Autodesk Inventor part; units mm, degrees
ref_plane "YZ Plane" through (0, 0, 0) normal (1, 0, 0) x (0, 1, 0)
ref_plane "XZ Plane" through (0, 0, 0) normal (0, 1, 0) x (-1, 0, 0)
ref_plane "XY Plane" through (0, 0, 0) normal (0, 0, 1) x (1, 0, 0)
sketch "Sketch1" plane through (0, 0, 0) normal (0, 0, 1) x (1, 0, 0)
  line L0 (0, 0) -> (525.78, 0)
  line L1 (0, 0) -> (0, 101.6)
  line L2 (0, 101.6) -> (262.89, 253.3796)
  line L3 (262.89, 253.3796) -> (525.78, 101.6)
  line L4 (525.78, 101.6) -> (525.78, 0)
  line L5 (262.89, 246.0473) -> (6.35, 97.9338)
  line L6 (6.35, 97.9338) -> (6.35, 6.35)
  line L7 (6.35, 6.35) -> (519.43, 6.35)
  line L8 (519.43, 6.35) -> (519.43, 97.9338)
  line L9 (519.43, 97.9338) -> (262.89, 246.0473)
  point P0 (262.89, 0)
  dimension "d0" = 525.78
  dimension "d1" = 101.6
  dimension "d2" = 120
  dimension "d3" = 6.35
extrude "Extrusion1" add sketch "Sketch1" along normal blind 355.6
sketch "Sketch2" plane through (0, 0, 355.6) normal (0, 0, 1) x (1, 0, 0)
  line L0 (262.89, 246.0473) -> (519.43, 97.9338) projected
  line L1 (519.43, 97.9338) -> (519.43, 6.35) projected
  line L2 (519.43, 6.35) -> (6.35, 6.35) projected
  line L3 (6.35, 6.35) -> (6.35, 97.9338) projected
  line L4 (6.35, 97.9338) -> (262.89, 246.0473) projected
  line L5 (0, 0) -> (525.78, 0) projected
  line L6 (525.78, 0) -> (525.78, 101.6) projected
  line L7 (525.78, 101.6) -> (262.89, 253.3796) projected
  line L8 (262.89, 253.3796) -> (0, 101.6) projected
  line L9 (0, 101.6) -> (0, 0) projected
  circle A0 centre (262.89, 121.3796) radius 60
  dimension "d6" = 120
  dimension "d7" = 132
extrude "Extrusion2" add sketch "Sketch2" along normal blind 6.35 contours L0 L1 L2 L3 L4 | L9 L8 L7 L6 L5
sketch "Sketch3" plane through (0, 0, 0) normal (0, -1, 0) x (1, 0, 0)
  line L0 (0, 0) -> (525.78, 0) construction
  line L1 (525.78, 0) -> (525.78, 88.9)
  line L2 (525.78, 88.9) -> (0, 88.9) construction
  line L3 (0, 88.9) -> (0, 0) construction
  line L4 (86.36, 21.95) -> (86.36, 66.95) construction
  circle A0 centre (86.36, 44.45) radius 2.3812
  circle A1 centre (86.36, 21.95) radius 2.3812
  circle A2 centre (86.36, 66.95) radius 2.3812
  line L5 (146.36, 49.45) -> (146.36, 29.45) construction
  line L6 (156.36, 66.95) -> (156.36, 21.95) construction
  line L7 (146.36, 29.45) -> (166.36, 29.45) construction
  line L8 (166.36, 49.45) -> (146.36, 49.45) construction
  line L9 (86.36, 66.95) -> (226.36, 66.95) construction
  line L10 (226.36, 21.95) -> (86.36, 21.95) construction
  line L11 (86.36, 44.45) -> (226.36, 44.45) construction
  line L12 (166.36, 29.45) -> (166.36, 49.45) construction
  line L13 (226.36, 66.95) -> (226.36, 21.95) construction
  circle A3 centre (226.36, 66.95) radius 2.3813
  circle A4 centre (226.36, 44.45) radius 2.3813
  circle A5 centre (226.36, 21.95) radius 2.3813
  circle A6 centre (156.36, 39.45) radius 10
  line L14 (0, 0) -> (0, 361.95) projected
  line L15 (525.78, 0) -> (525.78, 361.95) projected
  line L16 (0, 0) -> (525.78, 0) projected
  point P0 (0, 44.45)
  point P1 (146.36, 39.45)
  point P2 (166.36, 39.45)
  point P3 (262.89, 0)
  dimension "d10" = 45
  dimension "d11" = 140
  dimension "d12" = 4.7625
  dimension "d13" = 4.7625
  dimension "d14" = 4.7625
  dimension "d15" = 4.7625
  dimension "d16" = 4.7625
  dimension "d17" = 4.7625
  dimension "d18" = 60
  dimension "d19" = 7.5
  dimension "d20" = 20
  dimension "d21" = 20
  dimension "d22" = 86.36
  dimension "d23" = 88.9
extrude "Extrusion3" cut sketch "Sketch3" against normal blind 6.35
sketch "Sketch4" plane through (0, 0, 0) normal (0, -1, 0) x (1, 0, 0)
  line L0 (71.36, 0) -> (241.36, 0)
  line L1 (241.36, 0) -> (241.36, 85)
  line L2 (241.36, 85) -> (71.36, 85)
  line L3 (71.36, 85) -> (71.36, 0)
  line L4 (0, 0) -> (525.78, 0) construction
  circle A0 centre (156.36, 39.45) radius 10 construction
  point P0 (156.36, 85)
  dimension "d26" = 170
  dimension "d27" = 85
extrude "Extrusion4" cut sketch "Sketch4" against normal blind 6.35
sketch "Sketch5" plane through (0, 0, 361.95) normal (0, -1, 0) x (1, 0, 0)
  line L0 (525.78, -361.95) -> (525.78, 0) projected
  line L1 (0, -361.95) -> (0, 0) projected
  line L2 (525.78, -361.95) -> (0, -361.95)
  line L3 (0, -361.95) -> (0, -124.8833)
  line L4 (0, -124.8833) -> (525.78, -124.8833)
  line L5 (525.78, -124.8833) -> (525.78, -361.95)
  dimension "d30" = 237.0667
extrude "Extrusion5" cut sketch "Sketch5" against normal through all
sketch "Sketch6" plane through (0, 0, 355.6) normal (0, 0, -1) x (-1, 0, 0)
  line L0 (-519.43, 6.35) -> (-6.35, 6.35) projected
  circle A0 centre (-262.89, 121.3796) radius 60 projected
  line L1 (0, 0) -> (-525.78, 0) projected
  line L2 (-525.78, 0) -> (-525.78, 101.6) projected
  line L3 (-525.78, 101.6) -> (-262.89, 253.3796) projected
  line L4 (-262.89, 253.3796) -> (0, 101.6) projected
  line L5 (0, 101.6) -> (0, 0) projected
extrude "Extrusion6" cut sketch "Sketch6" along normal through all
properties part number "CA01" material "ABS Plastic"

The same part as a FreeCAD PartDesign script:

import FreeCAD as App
import Part
import Sketcher
from FreeCAD import Vector
Q = App.Units.Quantity

doc = App.newDocument("Part")
params = doc.addObject("Spreadsheet::Sheet", "Params")
for row, (alias, value) in enumerate([
    ("sketch1_height", "4 in"),
    ("sketch1_width", "20.7 in"),
    ("pad1_length", "14 in"),
    ("sketch2_height", "4 in"),
    ("sketch2_width", "20.7 in"),
    ("pad2_length", "0.25 in"),
    ("sketch3_diameter", "0.1875 in"),
    ("pocket1_length", "0.25 in"),
    ("pocket2_length", "0.25 in"),
    ("sketch5_width", "20.7 in"),
    ("sketch6_height", "4 in"),
    ("sketch6_width", "20.7 in"),
], start=1):
    params.set(f"A{row}", alias)
    params.set(f"B{row}", "=" + value)
    params.setAlias(f"B{row}", alias)

body = doc.addObject("PartDesign::Body", "Body")

sketch1 = body.newObject("Sketcher::SketchObject", "Sketch")
sketch1.AttachmentSupport = (doc.getObject("XY_Plane"), [""])
sketch1.MapMode = "FlatFace"
sketch1.addGeometry(Part.LineSegment(Vector(0, 102, 0), Vector(0, 0, 0)), False)
sketch1.addGeometry(Part.LineSegment(Vector(0, 0, 0), Vector(526, 0, 0)), False)
sketch1.addGeometry(Part.LineSegment(Vector(526, 0, 0), Vector(526, 102, 0)), False)
sketch1.addGeometry(Part.LineSegment(Vector(526, 102, 0), Vector(263, 253, 0)), False)
sketch1.addGeometry(Part.LineSegment(Vector(263, 253, 0), Vector(0, 102, 0)), False)
sketch1.addGeometry(Part.LineSegment(Vector(6, 98, 0), Vector(263, 246, 0)), False)
sketch1.addGeometry(Part.LineSegment(Vector(263, 246, 0), Vector(519, 98, 0)), False)
sketch1.addGeometry(Part.LineSegment(Vector(519, 98, 0), Vector(519, 6, 0)), False)
sketch1.addGeometry(Part.LineSegment(Vector(519, 6, 0), Vector(6, 6, 0)), False)
sketch1.addGeometry(Part.LineSegment(Vector(6, 6, 0), Vector(6, 98, 0)), False)
sketch1.addConstraint(Sketcher.Constraint("Coincident", 0, 2, 1, 1))
sketch1.addConstraint(Sketcher.Constraint("Coincident", 1, 2, 2, 1))
sketch1.addConstraint(Sketcher.Constraint("Coincident", 2, 2, 3, 1))
sketch1.addConstraint(Sketcher.Constraint("Coincident", 3, 2, 4, 1))
sketch1.addConstraint(Sketcher.Constraint("Coincident", 4, 2, 0, 1))
sketch1.addConstraint(Sketcher.Constraint("Coincident", 5, 2, 6, 1))
sketch1.addConstraint(Sketcher.Constraint("Coincident", 6, 2, 7, 1))
sketch1.addConstraint(Sketcher.Constraint("Coincident", 7, 2, 8, 1))
sketch1.addConstraint(Sketcher.Constraint("Coincident", 8, 2, 9, 1))
sketch1.addConstraint(Sketcher.Constraint("Coincident", 9, 2, 5, 1))
sketch1.addConstraint(Sketcher.Constraint("Vertical", 0))
sketch1.addConstraint(Sketcher.Constraint("Horizontal", 1))
sketch1.addConstraint(Sketcher.Constraint("Vertical", 2))
sketch1.addConstraint(Sketcher.Constraint("Vertical", 7))
sketch1.addConstraint(Sketcher.Constraint("Horizontal", 8))
sketch1.addConstraint(Sketcher.Constraint("Vertical", 9))
sketch1.addConstraint(Sketcher.Constraint("Coincident", 0, 2, -1, 1))
sketch1.addConstraint(Sketcher.Constraint("Parallel", 4, 5))
sketch1.addConstraint(Sketcher.Constraint("Parallel", 3, 6))
sketch1.addConstraint(Sketcher.Constraint("Horizontal", 2, 2, 4, 2))
sketch1.addConstraint(Sketcher.Constraint("Horizontal", 6, 2, 9, 2))
sketch1.addConstraint(Sketcher.Constraint("Vertical", 3, 2, 5, 2))
sketch1.addConstraint(Sketcher.Constraint("Equal", 3, 4))
sketch1.addConstraint(Sketcher.Constraint("DistanceY", 0, 2, 0, 1, Q("4 in")))
sketch1.addConstraint(Sketcher.Constraint("DistanceX", 1, 1, 1, 2, Q("20.7 in")))
sketch1.addConstraint(Sketcher.Constraint("DistanceY", -1, 1, 7, 2, Q("0.25 in")))
sketch1.addConstraint(Sketcher.Constraint("DistanceX", -1, 1, 8, 2, Q("0.25 in")))
sketch1.addConstraint(Sketcher.Constraint("Angle", 3, Q("150 deg")))
sketch1.addConstraint(Sketcher.Constraint("DistanceY", 7, 2, 7, 1, 91.5838))
sketch1.setExpression("Constraints[23]", "Params.sketch1_height")
sketch1.setExpression("Constraints[24]", "Params.sketch1_width")
pad1 = body.newObject("PartDesign::Pad", "Pad")
pad1.Profile = sketch1
pad1.setExpression("Length", "Params.pad1_length")

sketch2 = body.newObject("Sketcher::SketchObject", "Sketch001")
sketch2.AttachmentSupport = (doc.getObject("XY_Plane"), [""])
sketch2.MapMode = "FlatFace"
sketch2.AttachmentOffset = App.Placement(Vector(0, 0, 14 * 25.4), App.Rotation())
sketch2.addGeometry(Part.LineSegment(Vector(0, 102, 0), Vector(0, 0, 0)), False)
sketch2.addGeometry(Part.LineSegment(Vector(0, 0, 0), Vector(526, 0, 0)), False)
sketch2.addGeometry(Part.LineSegment(Vector(526, 0, 0), Vector(526, 102, 0)), False)
sketch2.addGeometry(Part.LineSegment(Vector(526, 102, 0), Vector(263, 253, 0)), False)
sketch2.addGeometry(Part.LineSegment(Vector(263, 253, 0), Vector(0, 102, 0)), False)
sketch2.addGeometry(Part.Circle(Vector(263, 121, 0), Vector(0, 0, 1), 60), False)
sketch2.addConstraint(Sketcher.Constraint("Coincident", 0, 2, 1, 1))
sketch2.addConstraint(Sketcher.Constraint("Coincident", 1, 2, 2, 1))
sketch2.addConstraint(Sketcher.Constraint("Coincident", 2, 2, 3, 1))
sketch2.addConstraint(Sketcher.Constraint("Coincident", 3, 2, 4, 1))
sketch2.addConstraint(Sketcher.Constraint("Coincident", 4, 2, 0, 1))
sketch2.addConstraint(Sketcher.Constraint("Vertical", 0))
sketch2.addConstraint(Sketcher.Constraint("Horizontal", 1))
sketch2.addConstraint(Sketcher.Constraint("Vertical", 2))
sketch2.addConstraint(Sketcher.Constraint("Coincident", 0, 2, -1, 1))
sketch2.addConstraint(Sketcher.Constraint("Horizontal", 2, 2, 4, 2))
sketch2.addConstraint(Sketcher.Constraint("Vertical", 5, 3, 3, 2))
sketch2.addConstraint(Sketcher.Constraint("Equal", 3, 4))
sketch2.addConstraint(Sketcher.Constraint("Diameter", 5, Q("4.7244 in")))
sketch2.addConstraint(Sketcher.Constraint("DistanceY", 0, 2, 0, 1, Q("4 in")))
sketch2.addConstraint(Sketcher.Constraint("DistanceX", 1, 1, 1, 2, Q("20.7 in")))
sketch2.addConstraint(Sketcher.Constraint("Angle", 3, Q("150 deg")))
sketch2.addConstraint(Sketcher.Constraint("DistanceY", 5, 3, 3, 2, 132.0))
sketch2.setExpression("Constraints[13]", "Params.sketch2_height")
sketch2.setExpression("Constraints[14]", "Params.sketch2_width")
pad2 = body.newObject("PartDesign::Pad", "Pad001")
pad2.Profile = sketch2
pad2.setExpression("Length", "Params.pad2_length")

sketch3 = body.newObject("Sketcher::SketchObject", "Sketch002")
sketch3.AttachmentSupport = (doc.getObject("XZ_Plane"), [""])
sketch3.MapMode = "FlatFace"
sketch3.addGeometry(Part.Circle(Vector(86.4, 44.5, 0), Vector(0, 0, 1), 2.4), False)
sketch3.addGeometry(Part.Circle(Vector(86.4, 21.9, 0), Vector(0, 0, 1), 2.4), False)
sketch3.addGeometry(Part.Circle(Vector(86.4, 67, 0), Vector(0, 0, 1), 2.4), False)
sketch3.addGeometry(Part.Circle(Vector(226.4, 67, 0), Vector(0, 0, 1), 2.4), False)
sketch3.addGeometry(Part.Circle(Vector(226.4, 44.5, 0), Vector(0, 0, 1), 2.4), False)
sketch3.addGeometry(Part.Circle(Vector(226.4, 21.9, 0), Vector(0, 0, 1), 2.4), False)
sketch3.addGeometry(Part.Circle(Vector(156.4, 39.5, 0), Vector(0, 0, 1), 10), False)
sketch3.addConstraint(Sketcher.Constraint("Equal", 0, 1))
sketch3.addConstraint(Sketcher.Constraint("Equal", 1, 2))
sketch3.addConstraint(Sketcher.Constraint("Equal", 2, 3))
sketch3.addConstraint(Sketcher.Constraint("Equal", 3, 4))
sketch3.addConstraint(Sketcher.Constraint("Equal", 4, 5))
sketch3.addConstraint(Sketcher.Constraint("Horizontal", 2, 3, 3, 3))
sketch3.addConstraint(Sketcher.Constraint("Horizontal", 0, 3, 4, 3))
sketch3.addConstraint(Sketcher.Constraint("Horizontal", 1, 3, 5, 3))
sketch3.addConstraint(Sketcher.Constraint("Vertical", 0, 3, 1, 3))
sketch3.addConstraint(Sketcher.Constraint("Vertical", 1, 3, 2, 3))
sketch3.addConstraint(Sketcher.Constraint("Vertical", 3, 3, 4, 3))
sketch3.addConstraint(Sketcher.Constraint("Vertical", 4, 3, 5, 3))
sketch3.addConstraint(Sketcher.Constraint("Diameter", 0, Q("0.1875 in")))
sketch3.addConstraint(Sketcher.Constraint("Diameter", 6, Q("0.7874 in")))
sketch3.addConstraint(Sketcher.Constraint("DistanceX", -1, 1, 0, 3, Q("3.4 in")))
sketch3.addConstraint(Sketcher.Constraint("DistanceX", 2, 3, 3, 3, Q("5.5118 in")))
sketch3.addConstraint(Sketcher.Constraint("DistanceY", -1, 1, 0, 3, Q("1.75 in")))
sketch3.addConstraint(Sketcher.Constraint("DistanceY", 1, 3, 2, 3, 45.0))
sketch3.addConstraint(Sketcher.Constraint("DistanceX", -1, 1, 6, 3, Q("6.1559 in")))
sketch3.addConstraint(Sketcher.Constraint("DistanceY", -1, 1, 1, 3, 21.95))
sketch3.addConstraint(Sketcher.Constraint("DistanceY", -1, 1, 6, 3, 39.45))
sketch3.setExpression("Constraints[12]", "Params.sketch3_diameter")
pocket1 = body.newObject("PartDesign::Pocket", "Pocket")
pocket1.Profile = sketch3
pocket1.setExpression("Length", "Params.pocket1_length")

sketch4 = body.newObject("Sketcher::SketchObject", "Sketch003")
sketch4.AttachmentSupport = (doc.getObject("XZ_Plane"), [""])
sketch4.MapMode = "FlatFace"
sketch4.addGeometry(Part.LineSegment(Vector(71, 85, 0), Vector(71, 0, 0)), False)
sketch4.addGeometry(Part.LineSegment(Vector(71, 0, 0), Vector(241, 0, 0)), False)
sketch4.addGeometry(Part.LineSegment(Vector(241, 0, 0), Vector(241, 85, 0)), False)
sketch4.addGeometry(Part.LineSegment(Vector(241, 85, 0), Vector(71, 85, 0)), False)
sketch4.addConstraint(Sketcher.Constraint("Coincident", 0, 2, 1, 1))
sketch4.addConstraint(Sketcher.Constraint("Coincident", 1, 2, 2, 1))
sketch4.addConstraint(Sketcher.Constraint("Coincident", 2, 2, 3, 1))
sketch4.addConstraint(Sketcher.Constraint("Coincident", 3, 2, 0, 1))
sketch4.addConstraint(Sketcher.Constraint("Vertical", 0))
sketch4.addConstraint(Sketcher.Constraint("Horizontal", 1))
sketch4.addConstraint(Sketcher.Constraint("Vertical", 2))
sketch4.addConstraint(Sketcher.Constraint("Horizontal", 3))
sketch4.addConstraint(Sketcher.Constraint("PointOnObject", 0, 2, -1))
sketch4.addConstraint(Sketcher.Constraint("DistanceX", 1, 1, 1, 2, 170.0))
sketch4.addConstraint(Sketcher.Constraint("DistanceY", 0, 2, 0, 1, 85.0))
sketch4.addConstraint(Sketcher.Constraint("DistanceX", -1, 1, 0, 2, 71.36))
pocket2 = body.newObject("PartDesign::Pocket", "Pocket001")
pocket2.Profile = sketch4
pocket2.setExpression("Length", "Params.pocket2_length")

sketch5 = body.newObject("Sketcher::SketchObject", "Sketch004")
sketch5.AttachmentSupport = (doc.getObject("XZ_Plane"), [""])
sketch5.MapMode = "FlatFace"
sketch5.addGeometry(Part.LineSegment(Vector(0, 0, 0), Vector(526, 0, 0)), False)
sketch5.addGeometry(Part.LineSegment(Vector(526, 0, 0), Vector(526, 237, 0)), False)
sketch5.addGeometry(Part.LineSegment(Vector(526, 237, 0), Vector(0, 237, 0)), False)
sketch5.addGeometry(Part.LineSegment(Vector(0, 237, 0), Vector(0, 0, 0)), False)
sketch5.addConstraint(Sketcher.Constraint("Coincident", 0, 2, 1, 1))
sketch5.addConstraint(Sketcher.Constraint("Coincident", 1, 2, 2, 1))
sketch5.addConstraint(Sketcher.Constraint("Coincident", 2, 2, 3, 1))
sketch5.addConstraint(Sketcher.Constraint("Coincident", 3, 2, 0, 1))
sketch5.addConstraint(Sketcher.Constraint("Horizontal", 0))
sketch5.addConstraint(Sketcher.Constraint("Vertical", 1))
sketch5.addConstraint(Sketcher.Constraint("Horizontal", 2))
sketch5.addConstraint(Sketcher.Constraint("Vertical", 3))
sketch5.addConstraint(Sketcher.Constraint("Coincident", 3, 2, -1, 1))
sketch5.addConstraint(Sketcher.Constraint("DistanceX", 0, 1, 0, 2, Q("20.7 in")))
sketch5.addConstraint(Sketcher.Constraint("DistanceY", 1, 1, 1, 2, 237.0667))
sketch5.setExpression("Constraints[9]", "Params.sketch5_width")
pocket3 = body.newObject("PartDesign::Pocket", "Pocket002")
pocket3.Profile = sketch5
pocket3.Type = "ThroughAll"

sketch6 = body.newObject("Sketcher::SketchObject", "Sketch005")
sketch6.AttachmentSupport = (doc.getObject("XY_Plane"), [""])
sketch6.MapMode = "FlatFace"
sketch6.AttachmentOffset = App.Placement(Vector(0, 0, 14 * 25.4), App.Rotation())
sketch6.addGeometry(Part.LineSegment(Vector(526, 0, 0), Vector(0, 0, 0)), False)
sketch6.addGeometry(Part.LineSegment(Vector(0, 0, 0), Vector(0, 102, 0)), False)
sketch6.addGeometry(Part.LineSegment(Vector(0, 102, 0), Vector(263, 253, 0)), False)
sketch6.addGeometry(Part.LineSegment(Vector(263, 253, 0), Vector(526, 102, 0)), False)
sketch6.addGeometry(Part.LineSegment(Vector(526, 102, 0), Vector(526, 0, 0)), False)
sketch6.addGeometry(Part.Circle(Vector(263, 121, 0), Vector(0, 0, 1), 60), False)
sketch6.addConstraint(Sketcher.Constraint("Coincident", 0, 2, 1, 1))
sketch6.addConstraint(Sketcher.Constraint("Coincident", 1, 2, 2, 1))
sketch6.addConstraint(Sketcher.Constraint("Coincident", 2, 2, 3, 1))
sketch6.addConstraint(Sketcher.Constraint("Coincident", 3, 2, 4, 1))
sketch6.addConstraint(Sketcher.Constraint("Coincident", 4, 2, 0, 1))
sketch6.addConstraint(Sketcher.Constraint("Horizontal", 0))
sketch6.addConstraint(Sketcher.Constraint("Vertical", 1))
sketch6.addConstraint(Sketcher.Constraint("Vertical", 4))
sketch6.addConstraint(Sketcher.Constraint("Coincident", 0, 2, -1, 1))
sketch6.addConstraint(Sketcher.Constraint("Horizontal", 1, 2, 3, 2))
sketch6.addConstraint(Sketcher.Constraint("Vertical", 5, 3, 2, 2))
sketch6.addConstraint(Sketcher.Constraint("Equal", 2, 3))
sketch6.addConstraint(Sketcher.Constraint("DistanceY", 1, 1, 1, 2, Q("4 in")))
sketch6.addConstraint(Sketcher.Constraint("DistanceX", 0, 2, 0, 1, Q("20.7 in")))
sketch6.addConstraint(Sketcher.Constraint("Angle", 2, Q("30 deg")))
sketch6.addConstraint(Sketcher.Constraint("Diameter", 5, Q("4.7244 in")))
sketch6.addConstraint(Sketcher.Constraint("DistanceY", -1, 1, 5, 3, 121.3796))
sketch6.setExpression("Constraints[12]", "Params.sketch6_height")
sketch6.setExpression("Constraints[13]", "Params.sketch6_width")
pocket4 = body.newObject("PartDesign::Pocket", "Pocket003")
pocket4.Profile = sketch6
pocket4.Type = "ThroughAll"

doc.recompute()
